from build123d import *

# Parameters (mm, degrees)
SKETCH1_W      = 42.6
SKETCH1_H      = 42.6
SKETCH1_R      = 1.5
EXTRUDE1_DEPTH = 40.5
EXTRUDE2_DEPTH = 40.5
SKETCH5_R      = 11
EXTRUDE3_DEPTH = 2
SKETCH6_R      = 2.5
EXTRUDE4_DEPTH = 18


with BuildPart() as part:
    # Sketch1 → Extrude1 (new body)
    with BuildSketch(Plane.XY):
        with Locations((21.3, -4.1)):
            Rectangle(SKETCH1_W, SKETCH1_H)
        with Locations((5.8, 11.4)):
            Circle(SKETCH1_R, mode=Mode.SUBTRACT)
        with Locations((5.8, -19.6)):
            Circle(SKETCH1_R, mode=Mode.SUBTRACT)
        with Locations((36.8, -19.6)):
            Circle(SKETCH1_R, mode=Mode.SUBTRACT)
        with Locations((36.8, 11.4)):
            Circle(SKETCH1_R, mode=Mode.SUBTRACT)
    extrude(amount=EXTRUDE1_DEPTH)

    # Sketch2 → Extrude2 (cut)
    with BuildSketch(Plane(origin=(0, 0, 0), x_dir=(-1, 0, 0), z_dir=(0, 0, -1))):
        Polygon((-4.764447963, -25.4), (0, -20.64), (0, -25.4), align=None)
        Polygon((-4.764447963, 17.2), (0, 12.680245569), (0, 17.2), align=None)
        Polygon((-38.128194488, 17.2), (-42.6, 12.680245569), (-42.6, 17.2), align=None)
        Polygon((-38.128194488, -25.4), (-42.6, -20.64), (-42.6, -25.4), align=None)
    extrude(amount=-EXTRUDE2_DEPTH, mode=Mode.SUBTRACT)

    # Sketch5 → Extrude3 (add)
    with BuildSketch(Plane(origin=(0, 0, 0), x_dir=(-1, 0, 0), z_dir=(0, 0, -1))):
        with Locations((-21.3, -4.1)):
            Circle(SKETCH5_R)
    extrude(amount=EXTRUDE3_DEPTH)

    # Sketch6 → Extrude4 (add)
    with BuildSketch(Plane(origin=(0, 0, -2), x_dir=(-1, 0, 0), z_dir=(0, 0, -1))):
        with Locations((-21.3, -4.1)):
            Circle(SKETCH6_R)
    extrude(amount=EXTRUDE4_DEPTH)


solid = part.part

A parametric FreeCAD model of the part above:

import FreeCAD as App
import Part
import Sketcher
Q = App.Units.Quantity

doc = App.newDocument("Part")
body = doc.addObject("PartDesign::Body", "Body")

sketch1 = body.newObject("Sketcher::SketchObject", "Sketch")
sketch1.AttachmentSupport = (doc.getObject("XY_Plane"), [""])
sketch1.MapMode = "FlatFace"
sketch1.addGeometry(Part.LineSegment(App.Vector(0, 17.2, 0), App.Vector(0, -25.4, 0)), False)
sketch1.addGeometry(Part.LineSegment(App.Vector(0, -25.4, 0), App.Vector(42.6, -25.4, 0)), False)
sketch1.addGeometry(Part.LineSegment(App.Vector(42.6, -25.4, 0), App.Vector(42.6, 17.2, 0)), False)
sketch1.addGeometry(Part.LineSegment(App.Vector(42.6, 17.2, 0), App.Vector(0, 17.2, 0)), False)
sketch1.addGeometry(Part.Circle(App.Vector(5.8, -19.6, 0), App.Vector(0, 0, 1), 1.5), False)
sketch1.addGeometry(Part.Circle(App.Vector(36.8, -19.6, 0), App.Vector(0, 0, 1), 1.5), False)
sketch1.addGeometry(Part.Circle(App.Vector(5.8, 11.4, 0), App.Vector(0, 0, 1), 1.5), False)
sketch1.addGeometry(Part.Circle(App.Vector(36.8, 11.4, 0), App.Vector(0, 0, 1), 1.5), False)
sketch1.addConstraint(Sketcher.Constraint("Coincident", 0, 2, 1, 1))
sketch1.addConstraint(Sketcher.Constraint("Coincident", 1, 2, 2, 1))
sketch1.addConstraint(Sketcher.Constraint("Coincident", 2, 2, 3, 1))
sketch1.addConstraint(Sketcher.Constraint("Coincident", 3, 2, 0, 1))
sketch1.addConstraint(Sketcher.Constraint("Vertical", 0))
sketch1.addConstraint(Sketcher.Constraint("Horizontal", 1))
sketch1.addConstraint(Sketcher.Constraint("Vertical", 2))
sketch1.addConstraint(Sketcher.Constraint("Horizontal", 3))
sketch1.addConstraint(Sketcher.Constraint("Equal", 4, 5))
sketch1.addConstraint(Sketcher.Constraint("Equal", 5, 6))
sketch1.addConstraint(Sketcher.Constraint("Equal", 6, 7))
sketch1.addConstraint(Sketcher.Constraint("PointOnObject", 0, 2, -2))
sketch1.addConstraint(Sketcher.Constraint("Horizontal", 4, 3, 5, 3))
sketch1.addConstraint(Sketcher.Constraint("Horizontal", 6, 3, 7, 3))
sketch1.addConstraint(Sketcher.Constraint("Vertical", 4, 3, 6, 3))
sketch1.addConstraint(Sketcher.Constraint("Vertical", 5, 3, 7, 3))
sketch1.addConstraint(Sketcher.Constraint("Equal", 3, 0))
sketch1.addConstraint(Sketcher.Constraint("Diameter", 4, Q("3 mm")))
sketch1.addConstraint(Sketcher.Constraint("DistanceX", 1, 1, 1, 2, Q("42.6 mm")))
sketch1.addConstraint(Sketcher.Constraint("DistanceX", 4, 3, 5, 3, Q("31 mm")))
sketch1.addConstraint(Sketcher.Constraint("DistanceY", 4, 3, 6, 3, Q("31 mm")))
sketch1.addConstraint(Sketcher.Constraint("DistanceX", -1, 1, 4, 3, Q("5.8 mm")))
sketch1.addConstraint(Sketcher.Constraint("DistanceY", 4, 3, -1, 1, Q("19.6 mm")))
sketch1.addConstraint(Sketcher.Constraint("DistanceY", 0, 2, -1, 1, Q("25.4 mm")))
pad1 = body.newObject("PartDesign::Pad", "Pad")
pad1.Profile = sketch1
pad1.Length = 40.5

sketch2 = body.newObject("Sketcher::SketchObject", "Sketch001")
sketch2.AttachmentSupport = (doc.getObject("XY_Plane"), [""])
sketch2.MapMode = "FlatFace"
sketch2.addGeometry(Part.LineSegment(App.Vector(0, -20.6, 0), App.Vector(4.8, -25.4, 0)), False)
sketch2.addGeometry(Part.LineSegment(App.Vector(4.8, -25.4, 0), App.Vector(0, -25.4, 0)), False)
sketch2.addGeometry(Part.LineSegment(App.Vector(0, -25.4, 0), App.Vector(0, -20.6, 0)), False)
sketch2.addGeometry(Part.LineSegment(App.Vector(4.8, 17.2, 0), App.Vector(0, 12.7, 0)), False)
sketch2.addGeometry(Part.LineSegment(App.Vector(0, 12.7, 0), App.Vector(0, 17.2, 0)), False)
sketch2.addGeometry(Part.LineSegment(App.Vector(0, 17.2, 0), App.Vector(4.8, 17.2, 0)), False)
sketch2.addGeometry(Part.LineSegment(App.Vector(42.6, 12.7, 0), App.Vector(38.1, 17.2, 0)), False)
sketch2.addGeometry(Part.LineSegment(App.Vector(38.1, 17.2, 0), App.Vector(42.6, 17.2, 0)), False)
sketch2.addGeometry(Part.LineSegment(App.Vector(42.6, 17.2, 0), App.Vector(42.6, 12.7, 0)), False)
sketch2.addGeometry(Part.LineSegment(App.Vector(38.1, -25.4, 0), App.Vector(42.6, -20.6, 0)), False)
sketch2.addGeometry(Part.LineSegment(App.Vector(42.6, -20.6, 0), App.Vector(42.6, -25.4, 0)), False)
sketch2.addGeometry(Part.LineSegment(App.Vector(42.6, -25.4, 0), App.Vector(38.1, -25.4, 0)), False)
sketch2.addConstraint(Sketcher.Constraint("Coincident", 0, 2, 1, 1))
sketch2.addConstraint(Sketcher.Constraint("Coincident", 1, 2, 2, 1))
sketch2.addConstraint(Sketcher.Constraint("Coincident", 2, 2, 0, 1))
sketch2.addConstraint(Sketcher.Constraint("Coincident", 3, 2, 4, 1))
sketch2.addConstraint(Sketcher.Constraint("Coincident", 4, 2, 5, 1))
sketch2.addConstraint(Sketcher.Constraint("Coincident", 5, 2, 3, 1))
sketch2.addConstraint(Sketcher.Constraint("Coincident", 6, 2, 7, 1))
sketch2.addConstraint(Sketcher.Constraint("Coincident", 7, 2, 8, 1))
sketch2.addConstraint(Sketcher.Constraint("Coincident", 8, 2, 6, 1))
sketch2.addConstraint(Sketcher.Constraint("Coincident", 9, 2, 10, 1))
sketch2.addConstraint(Sketcher.Constraint("Coincident", 10, 2, 11, 1))
sketch2.addConstraint(Sketcher.Constraint("Coincident", 11, 2, 9, 1))
sketch2.addConstraint(Sketcher.Constraint("Horizontal", 1))
sketch2.addConstraint(Sketcher.Constraint("Vertical", 2))
sketch2.addConstraint(Sketcher.Constraint("Vertical", 4))
sketch2.addConstraint(Sketcher.Constraint("Horizontal", 5))
sketch2.addConstraint(Sketcher.Constraint("Horizontal", 7))
sketch2.addConstraint(Sketcher.Constraint("Vertical", 8))
sketch2.addConstraint(Sketcher.Constraint("Vertical", 10))
sketch2.addConstraint(Sketcher.Constraint("Horizontal", 11))
sketch2.addConstraint(Sketcher.Constraint("PointOnObject", 1, 2, -2))
sketch2.addConstraint(Sketcher.Constraint("PointOnObject", 3, 2, -2))
sketch2.addConstraint(Sketcher.Constraint("Horizontal", 5, 2, 6, 2))
sketch2.addConstraint(Sketcher.Constraint("Horizontal", 3, 2, 8, 2))
sketch2.addConstraint(Sketcher.Constraint("Horizontal", 2, 2, 9, 2))
sketch2.addConstraint(Sketcher.Constraint("Horizontal", 1, 2, 10, 2))
sketch2.addConstraint(Sketcher.Constraint("Vertical", 0, 2, 5, 2))
sketch2.addConstraint(Sketcher.Constraint("Vertical", 8, 2, 9, 2))
sketch2.addConstraint(Sketcher.Constraint("Vertical", 6, 2, 11, 2))
sketch2.addConstraint(Sketcher.Constraint("DistanceY", 2, 1, 2, 2, Q("4.76 mm")))
sketch2.addConstraint(Sketcher.Constraint("DistanceY", 0, 2, -1, 1, Q("25.4 mm")))
sketch2.addConstraint(Sketcher.Constraint("DistanceY", -1, 1, 4, 2, Q("17.2 mm")))
sketch2.addConstraint(Sketcher.Constraint("DistanceX", -1, 1, 7, 2, Q("42.6 mm")))
sketch2.addConstraint(Sketcher.Constraint("DistanceX", 1, 2, 1, 1, Q("4.764448 mm")))
sketch2.addConstraint(Sketcher.Constraint("DistanceX", 7, 1, 7, 2, Q("4.471806 mm")))
sketch2.addConstraint(Sketcher.Constraint("DistanceY", 4, 1, 4, 2, Q("4.519754 mm")))
pocket1 = body.newObject("PartDesign::Pocket", "Pocket")
pocket1.Profile = sketch2
pocket1.Length = 40.5
pocket1.Reversed = True

sketch3 = body.newObject("Sketcher::SketchObject", "Sketch002")
sketch3.AttachmentSupport = (doc.getObject("XY_Plane"), [""])
sketch3.MapMode = "FlatFace"
sketch3.addGeometry(Part.Circle(App.Vector(21, -4, 0), App.Vector(0, 0, 1), 11), False)
sketch3.addConstraint(Sketcher.Constraint("Diameter", 0, Q("22 mm")))
sketch3.addConstraint(Sketcher.Constraint("DistanceX", -1, 1, 0, 3, Q("21.3 mm")))
sketch3.addConstraint(Sketcher.Constraint("DistanceY", 0, 3, -1, 1, Q("4.1 mm")))
pad2 = body.newObject("PartDesign::Pad", "Pad001")
pad2.Profile = sketch3
pad2.Length = 2
pad2.Reversed = True

sketch4 = body.newObject("Sketcher::SketchObject", "Sketch003")
sketch4.AttachmentSupport = (doc.getObject("XY_Plane"), [""])
sketch4.MapMode = "FlatFace"
sketch4.AttachmentOffset = App.Placement(App.Vector(0, 0, -2), App.Rotation())
sketch4.addGeometry(Part.Circle(App.Vector(21.3, -4.1, 0), App.Vector(0, 0, 1), 2.5), False)
sketch4.addConstraint(Sketcher.Constraint("Diameter", 0, Q("5 mm")))
sketch4.addConstraint(Sketcher.Constraint("DistanceX", -1, 1, 0, 3, Q("21.3 mm")))
sketch4.addConstraint(Sketcher.Constraint("DistanceY", 0, 3, -1, 1, Q("4.1 mm")))
pad3 = body.newObject("PartDesign::Pad", "Pad002")
pad3.Profile = sketch4
pad3.Length = 18
pad3.Reversed = True

doc.recompute()
